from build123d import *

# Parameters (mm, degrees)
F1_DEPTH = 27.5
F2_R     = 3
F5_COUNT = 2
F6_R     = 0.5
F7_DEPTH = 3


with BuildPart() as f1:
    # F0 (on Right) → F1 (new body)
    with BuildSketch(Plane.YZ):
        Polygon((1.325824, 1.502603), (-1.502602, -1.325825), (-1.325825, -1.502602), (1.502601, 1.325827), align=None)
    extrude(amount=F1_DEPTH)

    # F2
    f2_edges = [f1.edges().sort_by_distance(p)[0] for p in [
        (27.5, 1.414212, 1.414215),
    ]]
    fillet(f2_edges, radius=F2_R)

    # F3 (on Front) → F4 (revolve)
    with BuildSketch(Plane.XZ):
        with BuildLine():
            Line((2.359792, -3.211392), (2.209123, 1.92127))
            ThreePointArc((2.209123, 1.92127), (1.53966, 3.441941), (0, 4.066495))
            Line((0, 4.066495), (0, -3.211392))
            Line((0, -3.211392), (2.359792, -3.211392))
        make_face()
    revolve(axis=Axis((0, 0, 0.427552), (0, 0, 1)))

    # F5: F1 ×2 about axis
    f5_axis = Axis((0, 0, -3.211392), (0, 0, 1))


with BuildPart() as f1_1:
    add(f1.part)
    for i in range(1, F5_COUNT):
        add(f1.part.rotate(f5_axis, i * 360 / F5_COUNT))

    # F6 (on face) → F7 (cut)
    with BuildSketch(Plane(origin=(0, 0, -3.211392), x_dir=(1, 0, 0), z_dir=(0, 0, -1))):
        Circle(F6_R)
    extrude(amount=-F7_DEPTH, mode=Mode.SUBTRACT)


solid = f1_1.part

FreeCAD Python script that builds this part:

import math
import FreeCAD as App
import Part
import Sketcher

V = App.Vector
Q = App.Units.Quantity


def edges_at(feature, points):
    """Names of the edges that pass closest to the given points."""
    edges = feature.Shape.Edges
    near = lambda p: min(range(len(edges)), key=lambda i: edges[i].distToShape(Part.Vertex(*p))[0])
    return sorted({f"Edge{near(p) + 1}" for p in points})

doc = App.newDocument("Part")
body = doc.addObject("PartDesign::Body", "Body")

sketch1 = body.newObject("Sketcher::SketchObject", "Sketch")
sketch1.AttachmentSupport = (doc.getObject("YZ_Plane"), [""])
sketch1.MapMode = "FlatFace"
sketch1.addGeometry([
    Part.LineSegment(V(1.33, 1.5, 0), V(-1.5, -1.33, 0)),
    Part.LineSegment(V(-1.5, -1.33, 0), V(-1.33, -1.5, 0)),
    Part.LineSegment(V(-1.33, -1.5, 0), V(1.5, 1.33, 0)),
    Part.LineSegment(V(1.5, 1.33, 0), V(1.33, 1.5, 0)),
], False)
sketch1.addConstraint([
    Sketcher.Constraint("Coincident", 0, 2, 1, 1),
    Sketcher.Constraint("Coincident", 1, 2, 2, 1),
    Sketcher.Constraint("Coincident", 2, 2, 3, 1),
    Sketcher.Constraint("Coincident", 3, 2, 0, 1),
    Sketcher.Constraint("Symmetric", 0, 2, 2, 2, -1, 1),
    Sketcher.Constraint("Symmetric", 1, 2, 3, 2, -1, 1),
    Sketcher.Constraint("Perpendicular", 0, 1),
    Sketcher.Constraint("Angle", 1, Q("-45 deg")),
    Sketcher.Constraint("Distance", 0, 4.0),
    Sketcher.Constraint("Distance", 1, 0.25),
])
pad1 = body.newObject("PartDesign::Pad", "Pad")
pad1.Profile = sketch1
pad1.Length = 27.5
doc.recompute()

fillet = body.newObject("PartDesign::Fillet", "Fillet")
fillet.Base = (pad1, edges_at(pad1, [(27.5, 1.414, 1.414)]))
fillet.Radius = 3

sketch2 = body.newObject("Sketcher::SketchObject", "Sketch001")
sketch2.AttachmentSupport = (doc.getObject("XZ_Plane"), [""])
sketch2.MapMode = "FlatFace"
sketch2.addGeometry([
    Part.LineSegment(V(2.4, -3.2, 0), V(2.2, 1.9, 0)),
    Part.ArcOfCircle(Part.Circle(V(0, 1.9, 0), V(0, 0, 1), 2.2), math.radians(2), math.radians(90)),
    Part.LineSegment(V(0, 4.1, 0), V(0, -3.2, 0)),
    Part.LineSegment(V(0, -3.2, 0), V(2.4, -3.2, 0)),
], False)
sketch2.addConstraint([
    Sketcher.Constraint("Tangent", 0, 2, 1, 1),
    Sketcher.Constraint("Coincident", 1, 2, 2, 1),
    Sketcher.Constraint("Coincident", 2, 2, 3, 1),
    Sketcher.Constraint("Coincident", 3, 2, 0, 1),
    Sketcher.Constraint("Vertical", 2),
    Sketcher.Constraint("Horizontal", 3),
    Sketcher.Constraint("PointOnObject", 1, 3, -2),
    Sketcher.Constraint("PointOnObject", 1, 2, -2),
    Sketcher.Constraint("Radius", 1, 2.210075),
    Sketcher.Constraint("DistanceX", 3, 1, 3, 2, 2.359792),
    Sketcher.Constraint("DistanceY", 2, 2, 2, 1, 7.277887),
    Sketcher.Constraint("DistanceY", -1, 1, 1, 3, 1.85642),
])
revolution = body.newObject("PartDesign::Revolution", "Revolution")
revolution.Profile = sketch2
revolution.ReferenceAxis = (sketch2, ["V_Axis"])
revolution.Angle = 360
body2 = doc.addObject("PartDesign::Body", "Body001")
doc.recompute()

body2.BaseFeature = body
doc.recompute()

body.Placement = App.Placement(V(0, 0, 0), App.Rotation(V(0, 0, 1), 180))
boolean = body2.newObject("PartDesign::Boolean", "Boolean")
boolean.Type = "Fuse"
boolean.addObjects([body])

sketch3 = body2.newObject("Sketcher::SketchObject", "Sketch002")
sketch3.AttachmentSupport = (doc.getObject("XY_Plane001"), [""])
sketch3.MapMode = "FlatFace"
sketch3.AttachmentOffset = App.Placement(V(0, 0, -3.211392), App.Rotation())
sketch3.addGeometry(Part.Circle(V(0, 0, 0), V(0, 0, 1), 0.5), False)
sketch3.addConstraint([
    Sketcher.Constraint("Coincident", 0, 3, -1, 1),
    Sketcher.Constraint("Diameter", 0, 1.0),
])
pocket1 = body2.newObject("PartDesign::Pocket", "Pocket")
pocket1.Profile = sketch3
pocket1.Length = 3
pocket1.Reversed = True

doc.recompute()
